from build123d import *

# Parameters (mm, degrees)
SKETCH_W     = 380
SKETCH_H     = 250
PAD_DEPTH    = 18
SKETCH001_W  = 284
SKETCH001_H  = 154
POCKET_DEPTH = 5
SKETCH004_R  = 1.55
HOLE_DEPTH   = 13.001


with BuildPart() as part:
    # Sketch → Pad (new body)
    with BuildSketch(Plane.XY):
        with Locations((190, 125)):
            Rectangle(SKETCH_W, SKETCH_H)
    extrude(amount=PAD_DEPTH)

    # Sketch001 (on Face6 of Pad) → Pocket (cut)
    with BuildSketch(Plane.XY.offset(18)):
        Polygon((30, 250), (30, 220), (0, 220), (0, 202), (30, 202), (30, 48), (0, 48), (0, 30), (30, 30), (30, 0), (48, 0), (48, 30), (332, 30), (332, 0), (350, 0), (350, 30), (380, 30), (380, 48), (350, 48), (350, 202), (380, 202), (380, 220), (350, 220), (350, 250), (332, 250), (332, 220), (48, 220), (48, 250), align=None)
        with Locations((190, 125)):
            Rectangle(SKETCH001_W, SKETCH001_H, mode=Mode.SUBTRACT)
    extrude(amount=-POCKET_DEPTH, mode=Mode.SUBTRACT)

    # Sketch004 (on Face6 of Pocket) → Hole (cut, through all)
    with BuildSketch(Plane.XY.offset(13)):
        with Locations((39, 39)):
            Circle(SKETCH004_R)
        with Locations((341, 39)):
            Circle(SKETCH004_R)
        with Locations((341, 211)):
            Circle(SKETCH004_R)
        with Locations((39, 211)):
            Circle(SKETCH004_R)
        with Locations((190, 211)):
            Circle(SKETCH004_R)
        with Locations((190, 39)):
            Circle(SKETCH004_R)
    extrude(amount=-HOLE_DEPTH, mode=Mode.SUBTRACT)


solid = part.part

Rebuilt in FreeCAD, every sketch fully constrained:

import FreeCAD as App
import Part
import Sketcher

V = App.Vector
Q = App.Units.Quantity


def add_polygon(sketch, points):
    """Adds a closed chain of lines whose ends are joined by coincident constraints."""
    first, n = sketch.GeometryCount, len(points)
    for a, b in zip(points, points[1:] + points[:1]):
        sketch.addGeometry(Part.LineSegment(App.Vector(*a, 0), App.Vector(*b, 0)), False)
    for i in range(n):
        sketch.addConstraint(Sketcher.Constraint("Coincident", first + i, 2, first + (i + 1) % n, 1))

doc = App.newDocument("Part")
body = doc.addObject("PartDesign::Body", "Body")

# Sketch on XY plane
sketch1 = doc.addObject("Sketcher::SketchObject", "Sketch")
body.addObject(sketch1)
sketch1.AttachmentSupport = (doc.XY_Plane, [""])
sketch1.MapMode = "FlatFace"
add_polygon(sketch1, [(0, 250), (0, 0), (380, 0), (380, 250)])  # lines 0-3
sketch1.addConstraint([
    Sketcher.Constraint("Vertical", 0),
    Sketcher.Constraint("Horizontal", 1),
    Sketcher.Constraint("Vertical", 2),
    Sketcher.Constraint("Horizontal", 3),
    Sketcher.Constraint("Coincident", 0, 2, -1, 1),
    Sketcher.Constraint("DistanceX", 1, 1, 1, 2, Q("380 mm")),
    Sketcher.Constraint("DistanceY", 0, 2, 0, 1, Q("250 mm")),
])
pad1 = doc.addObject("PartDesign::Pad", "Pad")
body.addObject(pad1)
pad1.Profile = sketch1
pad1.Length = 18

# Sketch on XY plane
sketch2 = doc.addObject("Sketcher::SketchObject", "Sketch001")
body.addObject(sketch2)
sketch2.AttachmentSupport = (doc.XY_Plane, [""])
sketch2.MapMode = "FlatFace"
sketch2.AttachmentOffset = App.Placement(V(0, 0, 18), App.Rotation())
add_polygon(sketch2, [(30, 250), (30, 220), (0, 220), (0, 202), (30, 202), (30, 48), (0, 48), (0, 30), (30, 30), (30, 0), (48, 0), (48, 30), (332, 30), (332, 0), (350, 0), (350, 30), (380, 30), (380, 48), (350, 48), (350, 202), (380, 202), (380, 220), (350, 220), (350, 250), (332, 250), (332, 220), (48, 220), (48, 250)])  # lines 0-27
add_polygon(sketch2, [(332, 48), (48, 48), (48, 202), (332, 202)])  # lines 28-31
sketch2.addConstraint([
    Sketcher.Constraint("Vertical", 0),
    Sketcher.Constraint("Horizontal", 1),
    Sketcher.Constraint("Vertical", 2),
    Sketcher.Constraint("Horizontal", 3),
    Sketcher.Constraint("Vertical", 4),
    Sketcher.Constraint("Horizontal", 5),
    Sketcher.Constraint("Vertical", 6),
    Sketcher.Constraint("Horizontal", 7),
    Sketcher.Constraint("Vertical", 8),
    Sketcher.Constraint("Horizontal", 9),
    Sketcher.Constraint("Vertical", 10),
    Sketcher.Constraint("Horizontal", 11),
    Sketcher.Constraint("Vertical", 12),
    Sketcher.Constraint("Horizontal", 13),
    Sketcher.Constraint("Vertical", 14),
    Sketcher.Constraint("Horizontal", 15),
    Sketcher.Constraint("Vertical", 16),
    Sketcher.Constraint("Horizontal", 17),
    Sketcher.Constraint("Vertical", 18),
    Sketcher.Constraint("Horizontal", 19),
    Sketcher.Constraint("Vertical", 20),
    Sketcher.Constraint("Horizontal", 21),
    Sketcher.Constraint("Vertical", 22),
    Sketcher.Constraint("Horizontal", 23),
    Sketcher.Constraint("Vertical", 24),
    Sketcher.Constraint("Horizontal", 25),
    Sketcher.Constraint("Vertical", 26),
    Sketcher.Constraint("Horizontal", 27),
    Sketcher.Constraint("Horizontal", 28),
    Sketcher.Constraint("Vertical", 29),
    Sketcher.Constraint("Horizontal", 30),
    Sketcher.Constraint("Vertical", 31),
    Sketcher.Constraint("PointOnObject", 1, 2, -2),
    Sketcher.Constraint("PointOnObject", 5, 2, -2),
    Sketcher.Constraint("PointOnObject", 8, 2, -1),
    Sketcher.Constraint("PointOnObject", 12, 2, -1),
    Sketcher.Constraint("Horizontal", 7, 2, 10, 2),
    Sketcher.Constraint("Horizontal", 11, 2, 14, 2),
    Sketcher.Constraint("Horizontal", 5, 2, 16, 2),
    Sketcher.Constraint("Horizontal", 3, 2, 18, 2),
    Sketcher.Constraint("Horizontal", 1, 2, 20, 2),
    Sketcher.Constraint("Horizontal", 21, 2, 24, 2),
    Sketcher.Constraint("Horizontal", 23, 2, 26, 2),
    Sketcher.Constraint("Horizontal", 17, 2, 28, 2),
    Sketcher.Constraint("Horizontal", 19, 2, 29, 2),
    Sketcher.Constraint("Vertical", 0, 2, 3, 2),
    Sketcher.Constraint("Vertical", 4, 2, 7, 2),
    Sketcher.Constraint("Vertical", 14, 2, 17, 2),
    Sketcher.Constraint("Vertical", 16, 2, 19, 2),
    Sketcher.Constraint("Vertical", 18, 2, 21, 2),
    Sketcher.Constraint("Vertical", 12, 2, 23, 2),
    Sketcher.Constraint("Vertical", 10, 2, 25, 2),
    Sketcher.Constraint("Vertical", 26, 2, 28, 2),
    Sketcher.Constraint("Vertical", 24, 2, 30, 2),
    Sketcher.Constraint("Equal", 9, 13),
    Sketcher.Constraint("Equal", 7, 15),
    Sketcher.Constraint("Equal", 21, 0),
    Sketcher.Constraint("Equal", 27, 2),
    Sketcher.Constraint("Equal", 2, 6),
    Sketcher.Constraint("Equal", 0, 8),
    Sketcher.Constraint("DistanceX", 1, 2, 1, 1, Q("30 mm")),
    Sketcher.Constraint("DistanceX", 9, 1, 9, 2, Q("18 mm")),
    Sketcher.Constraint("DistanceX", 11, 1, 11, 2, Q("284 mm")),
    Sketcher.Constraint("DistanceY", 4, 2, 4, 1, Q("154 mm")),
])
pocket1 = doc.addObject("PartDesign::Pocket", "Pocket")
body.addObject(pocket1)
pocket1.Profile = sketch2
pocket1.Length = 5

# Sketch on XY plane
sketch3 = doc.addObject("Sketcher::SketchObject", "Sketch002")
body.addObject(sketch3)
sketch3.AttachmentSupport = (doc.XY_Plane, [""])
sketch3.MapMode = "FlatFace"
sketch3.AttachmentOffset = App.Placement(V(0, 0, 13), App.Rotation())
sketch3.addGeometry([
    Part.Circle(V(39, 39, 0), V(0, 0, 1), 1.6),  # 0
    Part.Circle(V(341, 39, 0), V(0, 0, 1), 1.6),  # 1
    Part.Circle(V(341, 211, 0), V(0, 0, 1), 1.6),  # 2
    Part.Circle(V(39, 211, 0), V(0, 0, 1), 1.6),  # 3
    Part.Circle(V(190, 211, 0), V(0, 0, 1), 1.6),  # 4
    Part.Circle(V(190, 39, 0), V(0, 0, 1), 1.6),  # 5
], False)
sketch3.addConstraint([
    Sketcher.Constraint("Equal", 0, 1),
    Sketcher.Constraint("Equal", 1, 2),
    Sketcher.Constraint("Equal", 2, 3),
    Sketcher.Constraint("Equal", 3, 4),
    Sketcher.Constraint("Equal", 4, 5),
    Sketcher.Constraint("Horizontal", 0, 3, 1, 3),
    Sketcher.Constraint("Horizontal", 2, 3, 3, 3),
    Sketcher.Constraint("Horizontal", 3, 3, 4, 3),
    Sketcher.Constraint("Horizontal", 1, 3, 5, 3),
    Sketcher.Constraint("Vertical", 1, 3, 2, 3),
    Sketcher.Constraint("Vertical", 0, 3, 3, 3),
    Sketcher.Constraint("Vertical", 4, 3, 5, 3),
    Sketcher.Constraint("Diameter", 0, Q("3.1 mm")),
    Sketcher.Constraint("DistanceX", -1, 1, 0, 3, Q("39 mm")),
    Sketcher.Constraint("DistanceY", -1, 1, 0, 3, Q("39 mm")),
    Sketcher.Constraint("DistanceX", -1, 1, 1, 3, Q("341 mm")),
    Sketcher.Constraint("DistanceY", -1, 1, 2, 3, Q("211 mm")),
    Sketcher.Constraint("DistanceX", -1, 1, 4, 3, Q("190 mm")),
])
pocket2 = doc.addObject("PartDesign::Pocket", "Pocket001")
body.addObject(pocket2)
pocket2.Profile = sketch3
pocket2.Type = "ThroughAll"

doc.recompute()
